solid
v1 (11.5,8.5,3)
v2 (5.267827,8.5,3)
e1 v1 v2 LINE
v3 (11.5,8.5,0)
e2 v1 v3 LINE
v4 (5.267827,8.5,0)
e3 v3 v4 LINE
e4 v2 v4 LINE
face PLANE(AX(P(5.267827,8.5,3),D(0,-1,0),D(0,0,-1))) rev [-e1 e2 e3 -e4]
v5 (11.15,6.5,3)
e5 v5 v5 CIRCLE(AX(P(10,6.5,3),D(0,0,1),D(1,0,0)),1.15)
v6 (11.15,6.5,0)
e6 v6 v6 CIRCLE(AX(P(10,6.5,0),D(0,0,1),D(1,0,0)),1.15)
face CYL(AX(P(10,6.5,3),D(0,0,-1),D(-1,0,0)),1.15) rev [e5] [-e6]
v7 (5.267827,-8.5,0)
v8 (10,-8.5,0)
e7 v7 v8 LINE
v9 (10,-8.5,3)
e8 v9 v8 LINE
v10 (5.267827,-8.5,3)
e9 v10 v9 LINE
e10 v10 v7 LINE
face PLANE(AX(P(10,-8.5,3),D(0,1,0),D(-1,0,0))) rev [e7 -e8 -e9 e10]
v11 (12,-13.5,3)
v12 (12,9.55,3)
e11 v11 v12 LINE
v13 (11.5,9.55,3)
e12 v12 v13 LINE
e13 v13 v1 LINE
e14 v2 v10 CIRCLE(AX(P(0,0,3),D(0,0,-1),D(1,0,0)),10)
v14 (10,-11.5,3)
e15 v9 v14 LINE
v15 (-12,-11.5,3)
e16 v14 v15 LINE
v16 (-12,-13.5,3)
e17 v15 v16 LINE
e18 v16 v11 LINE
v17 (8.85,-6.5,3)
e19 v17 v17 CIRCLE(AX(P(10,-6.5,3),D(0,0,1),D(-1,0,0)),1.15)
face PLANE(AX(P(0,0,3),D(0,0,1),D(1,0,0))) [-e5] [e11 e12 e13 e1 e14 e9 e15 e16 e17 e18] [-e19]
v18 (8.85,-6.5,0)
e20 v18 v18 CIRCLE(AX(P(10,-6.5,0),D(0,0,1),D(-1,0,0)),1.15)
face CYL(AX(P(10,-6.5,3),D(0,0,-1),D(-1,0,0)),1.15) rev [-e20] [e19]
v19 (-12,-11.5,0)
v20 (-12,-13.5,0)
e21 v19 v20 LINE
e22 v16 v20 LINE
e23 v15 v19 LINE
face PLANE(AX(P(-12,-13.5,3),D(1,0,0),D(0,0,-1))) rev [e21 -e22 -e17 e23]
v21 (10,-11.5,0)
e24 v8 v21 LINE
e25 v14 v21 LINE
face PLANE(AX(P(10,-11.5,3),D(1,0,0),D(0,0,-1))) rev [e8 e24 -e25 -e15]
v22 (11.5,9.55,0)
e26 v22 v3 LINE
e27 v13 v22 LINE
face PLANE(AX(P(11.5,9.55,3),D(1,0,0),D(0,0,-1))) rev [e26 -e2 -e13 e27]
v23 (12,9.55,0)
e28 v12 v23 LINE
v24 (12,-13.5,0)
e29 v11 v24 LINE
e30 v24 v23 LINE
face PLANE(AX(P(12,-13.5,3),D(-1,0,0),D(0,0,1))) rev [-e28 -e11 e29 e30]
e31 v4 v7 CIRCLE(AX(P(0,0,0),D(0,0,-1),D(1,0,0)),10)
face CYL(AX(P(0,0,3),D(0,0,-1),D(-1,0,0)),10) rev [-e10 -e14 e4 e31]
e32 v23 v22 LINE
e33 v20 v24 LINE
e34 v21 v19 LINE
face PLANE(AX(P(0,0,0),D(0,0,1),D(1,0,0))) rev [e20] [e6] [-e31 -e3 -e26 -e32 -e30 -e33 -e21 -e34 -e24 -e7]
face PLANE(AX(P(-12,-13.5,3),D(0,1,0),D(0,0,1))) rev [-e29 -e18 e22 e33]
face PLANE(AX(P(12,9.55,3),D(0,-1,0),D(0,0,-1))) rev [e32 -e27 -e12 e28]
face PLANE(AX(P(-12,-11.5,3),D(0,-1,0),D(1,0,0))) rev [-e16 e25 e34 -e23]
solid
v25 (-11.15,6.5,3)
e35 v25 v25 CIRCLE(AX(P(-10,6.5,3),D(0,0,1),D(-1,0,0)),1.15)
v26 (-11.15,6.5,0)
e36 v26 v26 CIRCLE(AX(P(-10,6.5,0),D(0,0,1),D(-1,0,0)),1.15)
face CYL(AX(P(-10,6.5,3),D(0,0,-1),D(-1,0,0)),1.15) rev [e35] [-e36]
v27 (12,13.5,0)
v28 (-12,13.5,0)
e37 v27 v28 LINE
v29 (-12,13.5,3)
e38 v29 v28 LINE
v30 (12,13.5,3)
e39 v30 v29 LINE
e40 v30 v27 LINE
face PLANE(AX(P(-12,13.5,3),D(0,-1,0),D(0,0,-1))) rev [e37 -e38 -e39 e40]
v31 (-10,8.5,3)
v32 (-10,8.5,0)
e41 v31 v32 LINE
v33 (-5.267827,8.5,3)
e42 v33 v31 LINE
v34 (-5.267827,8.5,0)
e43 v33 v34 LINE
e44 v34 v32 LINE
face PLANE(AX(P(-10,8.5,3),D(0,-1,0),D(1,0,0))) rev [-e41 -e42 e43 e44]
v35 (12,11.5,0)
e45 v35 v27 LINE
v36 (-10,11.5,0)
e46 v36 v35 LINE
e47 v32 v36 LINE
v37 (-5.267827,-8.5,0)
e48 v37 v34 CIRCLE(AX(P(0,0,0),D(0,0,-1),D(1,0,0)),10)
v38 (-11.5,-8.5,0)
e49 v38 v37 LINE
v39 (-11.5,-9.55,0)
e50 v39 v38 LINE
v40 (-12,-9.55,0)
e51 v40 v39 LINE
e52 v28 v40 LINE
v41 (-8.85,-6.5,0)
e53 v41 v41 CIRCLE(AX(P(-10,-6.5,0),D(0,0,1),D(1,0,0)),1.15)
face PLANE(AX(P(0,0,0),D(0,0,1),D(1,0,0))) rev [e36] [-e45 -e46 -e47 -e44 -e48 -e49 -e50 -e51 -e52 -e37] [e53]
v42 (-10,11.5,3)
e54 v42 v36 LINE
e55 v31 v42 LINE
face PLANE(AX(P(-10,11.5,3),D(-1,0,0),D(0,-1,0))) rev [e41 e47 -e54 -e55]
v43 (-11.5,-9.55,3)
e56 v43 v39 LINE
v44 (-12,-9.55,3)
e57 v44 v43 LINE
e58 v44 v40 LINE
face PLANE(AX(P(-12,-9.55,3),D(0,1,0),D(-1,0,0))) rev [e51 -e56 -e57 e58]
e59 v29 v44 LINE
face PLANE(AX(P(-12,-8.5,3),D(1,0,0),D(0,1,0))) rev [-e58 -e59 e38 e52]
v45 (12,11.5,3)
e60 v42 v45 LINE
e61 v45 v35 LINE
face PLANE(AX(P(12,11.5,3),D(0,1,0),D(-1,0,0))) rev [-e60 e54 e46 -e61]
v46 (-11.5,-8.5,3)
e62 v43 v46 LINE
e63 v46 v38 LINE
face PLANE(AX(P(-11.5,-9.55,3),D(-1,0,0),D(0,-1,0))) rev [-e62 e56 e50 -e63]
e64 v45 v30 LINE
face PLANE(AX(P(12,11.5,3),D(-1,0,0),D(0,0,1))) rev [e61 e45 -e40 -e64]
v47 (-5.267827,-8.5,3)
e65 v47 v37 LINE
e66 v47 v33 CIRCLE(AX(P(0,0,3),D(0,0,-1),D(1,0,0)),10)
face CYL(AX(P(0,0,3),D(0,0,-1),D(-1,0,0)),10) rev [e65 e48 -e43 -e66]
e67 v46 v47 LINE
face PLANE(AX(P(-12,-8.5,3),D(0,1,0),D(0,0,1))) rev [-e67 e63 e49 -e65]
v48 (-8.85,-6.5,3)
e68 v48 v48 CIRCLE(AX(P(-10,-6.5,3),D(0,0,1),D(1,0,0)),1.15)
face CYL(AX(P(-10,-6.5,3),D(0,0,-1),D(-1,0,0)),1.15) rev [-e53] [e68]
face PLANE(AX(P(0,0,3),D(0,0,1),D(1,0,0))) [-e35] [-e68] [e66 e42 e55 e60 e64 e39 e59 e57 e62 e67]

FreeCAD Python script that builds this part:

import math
import FreeCAD as App
import Part
import Sketcher

V = App.Vector

doc = App.newDocument("Part")
body = doc.addObject("PartDesign::Body", "Body")

sketch1 = doc.addObject("Sketcher::SketchObject", "Sketch")
body.addObject(sketch1)
sketch1.AttachmentSupport = (doc.XY_Plane, [""])
sketch1.MapMode = "FlatFace"
sketch1.addGeometry([
    Part.LineSegment(V(-12, -8.5, 0), V(-5.3, -8.5, 0)),
    Part.ArcOfCircle(Part.Circle(V(0, 0, 0), V(0, 0, 1), 10), math.radians(122), math.radians(238)),
    Part.LineSegment(V(-5.3, 8.5, 0), V(-10, 8.5, 0)),
    Part.LineSegment(V(-10, 8.5, 0), V(-10, 11.5, 0)),
    Part.LineSegment(V(-10, 11.5, 0), V(12, 11.5, 0)),
    Part.LineSegment(V(12, 11.5, 0), V(12, 13.5, 0)),
    Part.LineSegment(V(12, 13.5, 0), V(-12, 13.5, 0)),
    Part.LineSegment(V(-12, 13.5, 0), V(-12, -8.5, 0)),
    Part.Circle(V(-10, -6.5, 0), V(0, 0, 1), 1.1),
    Part.Circle(V(-10, 6.5, 0), V(0, 0, 1), 1.1),
], False)
sketch1.addConstraint([
    Sketcher.Constraint("Coincident", 0, 2, 1, 2),
    Sketcher.Constraint("Coincident", 1, 1, 2, 1),
    Sketcher.Constraint("Coincident", 2, 2, 3, 1),
    Sketcher.Constraint("Coincident", 3, 2, 4, 1),
    Sketcher.Constraint("Coincident", 4, 2, 5, 1),
    Sketcher.Constraint("Coincident", 5, 2, 6, 1),
    Sketcher.Constraint("Coincident", 6, 2, 7, 1),
    Sketcher.Constraint("Coincident", 7, 2, 0, 1),
    Sketcher.Constraint("Horizontal", 0),
    Sketcher.Constraint("Horizontal", 2),
    Sketcher.Constraint("Vertical", 3),
    Sketcher.Constraint("Horizontal", 4),
    Sketcher.Constraint("Vertical", 5),
    Sketcher.Constraint("Horizontal", 6),
    Sketcher.Constraint("Vertical", 7),
    Sketcher.Constraint("Coincident", 1, 3, -1, 1),
    Sketcher.Constraint("Equal", 8, 9),
    Sketcher.Constraint("Symmetric", 8, 3, 9, 3, -1),
    Sketcher.Constraint("Vertical", 0, 2, 1, 1),
    Sketcher.Constraint("Vertical", 9, 3, 2, 2),
    Sketcher.Constraint("Equal", 4, 7),
    Sketcher.Constraint("Radius", 1, 10.0),
    Sketcher.Constraint("Diameter", 8, 2.3),
    Sketcher.Constraint("DistanceX", 4, 1, 4, 2, 22.0),
    Sketcher.Constraint("DistanceX", 6, 2, 6, 1, 24.0),
    Sketcher.Constraint("DistanceY", 3, 1, 3, 2, 3.0),
    Sketcher.Constraint("DistanceY", 5, 1, 5, 2, 2.0),
    Sketcher.Constraint("DistanceX", 8, 3, -1, 1, 10.0),
    Sketcher.Constraint("DistanceY", 8, 3, 9, 3, 13.0),
])
pad1 = doc.addObject("PartDesign::Pad", "Pad")
body.addObject(pad1)
pad1.Profile = sketch1
pad1.Length = 3
body2 = doc.addObject("PartDesign::Body", "Body001")

sketch2 = doc.addObject("Sketcher::SketchObject", "Sketch001")
body2.addObject(sketch2)
sketch2.AttachmentSupport = (doc.getObject("XY_Plane001"), [""])
sketch2.MapMode = "FlatFace"
sketch2.addGeometry([
    Part.LineSegment(V(-12, -13.5, 0), V(12, -13.5, 0)),
    Part.LineSegment(V(12, -13.5, 0), V(12, 8.5, 0)),
    Part.LineSegment(V(12, 8.5, 0), V(5.3, 8.5, 0)),
    Part.ArcOfCircle(Part.Circle(V(0, 0, 0), V(0, 0, 1), 10), math.radians(-58), math.radians(58)),
    Part.LineSegment(V(5.3, -8.5, 0), V(10, -8.5, 0)),
    Part.LineSegment(V(10, -8.5, 0), V(10, -11.5, 0)),
    Part.LineSegment(V(10, -11.5, 0), V(-12, -11.5, 0)),
    Part.LineSegment(V(-12, -11.5, 0), V(-12, -13.5, 0)),
    Part.Circle(V(10, -6.5, 0), V(0, 0, 1), 1.1),
    Part.Circle(V(10, 6.5, 0), V(0, 0, 1), 1.1),
], False)
sketch2.addConstraint([
    Sketcher.Constraint("Coincident", 0, 2, 1, 1),
    Sketcher.Constraint("Coincident", 1, 2, 2, 1),
    Sketcher.Constraint("Coincident", 2, 2, 3, 2),
    Sketcher.Constraint("Coincident", 3, 1, 4, 1),
    Sketcher.Constraint("Coincident", 4, 2, 5, 1),
    Sketcher.Constraint("Coincident", 5, 2, 6, 1),
    Sketcher.Constraint("Coincident", 6, 2, 7, 1),
    Sketcher.Constraint("Coincident", 7, 2, 0, 1),
    Sketcher.Constraint("Horizontal", 0),
    Sketcher.Constraint("Vertical", 1),
    Sketcher.Constraint("Horizontal", 2),
    Sketcher.Constraint("Horizontal", 4),
    Sketcher.Constraint("Vertical", 5),
    Sketcher.Constraint("Horizontal", 6),
    Sketcher.Constraint("Vertical", 7),
    Sketcher.Constraint("Coincident", 3, 3, -1, 1),
    Sketcher.Constraint("Equal", 8, 9),
    Sketcher.Constraint("Symmetric", 8, 3, 9, 3, -1),
    Sketcher.Constraint("Vertical", 2, 2, 3, 1),
    Sketcher.Constraint("Vertical", 9, 3, 4, 2),
    Sketcher.Constraint("Equal", 6, 1),
    Sketcher.Constraint("Radius", 3, 10.0),
    Sketcher.Constraint("Diameter", 8, 2.3),
    Sketcher.Constraint("DistanceX", 0, 1, 0, 2, 24.0),
    Sketcher.Constraint("DistanceX", 6, 2, 6, 1, 22.0),
    Sketcher.Constraint("DistanceY", 5, 2, 5, 1, 3.0),
    Sketcher.Constraint("DistanceY", 7, 2, 7, 1, 2.0),
    Sketcher.Constraint("DistanceX", -1, 1, 8, 3, 10.0),
    Sketcher.Constraint("DistanceY", 8, 3, 9, 3, 13.0),
])
pad2 = doc.addObject("PartDesign::Pad", "Pad001")
body2.addObject(pad2)
pad2.Profile = sketch2
pad2.Length = 3
body.AllowCompound = True
doc.recompute()

boolean = doc.addObject("PartDesign::Boolean", "Boolean")
body.addObject(boolean)
boolean.Type = "Fuse"
boolean.addObjects([body2])

sketch3 = doc.addObject("Sketcher::SketchObject", "Sketch002")
body.addObject(sketch3)
sketch3.AttachmentSupport = (doc.XY_Plane, [""])
sketch3.MapMode = "FlatFace"
sketch3.addGeometry([
    Part.LineSegment(V(11.5, 9.6, 0), V(11.5, 8.5, 0)),
    Part.LineSegment(V(11.5, 8.5, 0), V(12, 8.5, 0)),
    Part.LineSegment(V(12, 8.5, 0), V(12, 9.6, 0)),
    Part.LineSegment(V(12, 9.6, 0), V(11.5, 9.6, 0)),
    Part.LineSegment(V(-12, -8.5, 0), V(-12, -9.6, 0)),
    Part.LineSegment(V(-12, -9.6, 0), V(-11.5, -9.6, 0)),
    Part.LineSegment(V(-11.5, -9.6, 0), V(-11.5, -8.5, 0)),
    Part.LineSegment(V(-11.5, -8.5, 0), V(-12, -8.5, 0)),
], False)
sketch3.addConstraint([
    Sketcher.Constraint("Coincident", 0, 2, 1, 1),
    Sketcher.Constraint("Coincident", 1, 2, 2, 1),
    Sketcher.Constraint("Coincident", 2, 2, 3, 1),
    Sketcher.Constraint("Coincident", 3, 2, 0, 1),
    Sketcher.Constraint("Coincident", 4, 2, 5, 1),
    Sketcher.Constraint("Coincident", 5, 2, 6, 1),
    Sketcher.Constraint("Coincident", 6, 2, 7, 1),
    Sketcher.Constraint("Coincident", 7, 2, 4, 1),
    Sketcher.Constraint("Vertical", 0),
    Sketcher.Constraint("Horizontal", 1),
    Sketcher.Constraint("Vertical", 2),
    Sketcher.Constraint("Horizontal", 3),
    Sketcher.Constraint("Vertical", 4),
    Sketcher.Constraint("Horizontal", 5),
    Sketcher.Constraint("Vertical", 6),
    Sketcher.Constraint("Horizontal", 7),
    Sketcher.Constraint("Symmetric", 2, 2, 4, 2, -1, 1),
    Sketcher.Constraint("Symmetric", 0, 2, 6, 2, -1, 1),
    Sketcher.Constraint("DistanceX", 1, 1, 1, 2, 0.5),
    Sketcher.Constraint("DistanceX", -1, 1, 1, 2, 12.0),
    Sketcher.Constraint("DistanceY", 6, 2, 0, 2, 17.0),
    Sketcher.Constraint("DistanceY", 0, 2, 0, 1, 1.05),
])
pad3 = doc.addObject("PartDesign::Pad", "Pad002")
body.addObject(pad3)
pad3.Profile = sketch3
pad3.Length = 3

doc.recompute()
